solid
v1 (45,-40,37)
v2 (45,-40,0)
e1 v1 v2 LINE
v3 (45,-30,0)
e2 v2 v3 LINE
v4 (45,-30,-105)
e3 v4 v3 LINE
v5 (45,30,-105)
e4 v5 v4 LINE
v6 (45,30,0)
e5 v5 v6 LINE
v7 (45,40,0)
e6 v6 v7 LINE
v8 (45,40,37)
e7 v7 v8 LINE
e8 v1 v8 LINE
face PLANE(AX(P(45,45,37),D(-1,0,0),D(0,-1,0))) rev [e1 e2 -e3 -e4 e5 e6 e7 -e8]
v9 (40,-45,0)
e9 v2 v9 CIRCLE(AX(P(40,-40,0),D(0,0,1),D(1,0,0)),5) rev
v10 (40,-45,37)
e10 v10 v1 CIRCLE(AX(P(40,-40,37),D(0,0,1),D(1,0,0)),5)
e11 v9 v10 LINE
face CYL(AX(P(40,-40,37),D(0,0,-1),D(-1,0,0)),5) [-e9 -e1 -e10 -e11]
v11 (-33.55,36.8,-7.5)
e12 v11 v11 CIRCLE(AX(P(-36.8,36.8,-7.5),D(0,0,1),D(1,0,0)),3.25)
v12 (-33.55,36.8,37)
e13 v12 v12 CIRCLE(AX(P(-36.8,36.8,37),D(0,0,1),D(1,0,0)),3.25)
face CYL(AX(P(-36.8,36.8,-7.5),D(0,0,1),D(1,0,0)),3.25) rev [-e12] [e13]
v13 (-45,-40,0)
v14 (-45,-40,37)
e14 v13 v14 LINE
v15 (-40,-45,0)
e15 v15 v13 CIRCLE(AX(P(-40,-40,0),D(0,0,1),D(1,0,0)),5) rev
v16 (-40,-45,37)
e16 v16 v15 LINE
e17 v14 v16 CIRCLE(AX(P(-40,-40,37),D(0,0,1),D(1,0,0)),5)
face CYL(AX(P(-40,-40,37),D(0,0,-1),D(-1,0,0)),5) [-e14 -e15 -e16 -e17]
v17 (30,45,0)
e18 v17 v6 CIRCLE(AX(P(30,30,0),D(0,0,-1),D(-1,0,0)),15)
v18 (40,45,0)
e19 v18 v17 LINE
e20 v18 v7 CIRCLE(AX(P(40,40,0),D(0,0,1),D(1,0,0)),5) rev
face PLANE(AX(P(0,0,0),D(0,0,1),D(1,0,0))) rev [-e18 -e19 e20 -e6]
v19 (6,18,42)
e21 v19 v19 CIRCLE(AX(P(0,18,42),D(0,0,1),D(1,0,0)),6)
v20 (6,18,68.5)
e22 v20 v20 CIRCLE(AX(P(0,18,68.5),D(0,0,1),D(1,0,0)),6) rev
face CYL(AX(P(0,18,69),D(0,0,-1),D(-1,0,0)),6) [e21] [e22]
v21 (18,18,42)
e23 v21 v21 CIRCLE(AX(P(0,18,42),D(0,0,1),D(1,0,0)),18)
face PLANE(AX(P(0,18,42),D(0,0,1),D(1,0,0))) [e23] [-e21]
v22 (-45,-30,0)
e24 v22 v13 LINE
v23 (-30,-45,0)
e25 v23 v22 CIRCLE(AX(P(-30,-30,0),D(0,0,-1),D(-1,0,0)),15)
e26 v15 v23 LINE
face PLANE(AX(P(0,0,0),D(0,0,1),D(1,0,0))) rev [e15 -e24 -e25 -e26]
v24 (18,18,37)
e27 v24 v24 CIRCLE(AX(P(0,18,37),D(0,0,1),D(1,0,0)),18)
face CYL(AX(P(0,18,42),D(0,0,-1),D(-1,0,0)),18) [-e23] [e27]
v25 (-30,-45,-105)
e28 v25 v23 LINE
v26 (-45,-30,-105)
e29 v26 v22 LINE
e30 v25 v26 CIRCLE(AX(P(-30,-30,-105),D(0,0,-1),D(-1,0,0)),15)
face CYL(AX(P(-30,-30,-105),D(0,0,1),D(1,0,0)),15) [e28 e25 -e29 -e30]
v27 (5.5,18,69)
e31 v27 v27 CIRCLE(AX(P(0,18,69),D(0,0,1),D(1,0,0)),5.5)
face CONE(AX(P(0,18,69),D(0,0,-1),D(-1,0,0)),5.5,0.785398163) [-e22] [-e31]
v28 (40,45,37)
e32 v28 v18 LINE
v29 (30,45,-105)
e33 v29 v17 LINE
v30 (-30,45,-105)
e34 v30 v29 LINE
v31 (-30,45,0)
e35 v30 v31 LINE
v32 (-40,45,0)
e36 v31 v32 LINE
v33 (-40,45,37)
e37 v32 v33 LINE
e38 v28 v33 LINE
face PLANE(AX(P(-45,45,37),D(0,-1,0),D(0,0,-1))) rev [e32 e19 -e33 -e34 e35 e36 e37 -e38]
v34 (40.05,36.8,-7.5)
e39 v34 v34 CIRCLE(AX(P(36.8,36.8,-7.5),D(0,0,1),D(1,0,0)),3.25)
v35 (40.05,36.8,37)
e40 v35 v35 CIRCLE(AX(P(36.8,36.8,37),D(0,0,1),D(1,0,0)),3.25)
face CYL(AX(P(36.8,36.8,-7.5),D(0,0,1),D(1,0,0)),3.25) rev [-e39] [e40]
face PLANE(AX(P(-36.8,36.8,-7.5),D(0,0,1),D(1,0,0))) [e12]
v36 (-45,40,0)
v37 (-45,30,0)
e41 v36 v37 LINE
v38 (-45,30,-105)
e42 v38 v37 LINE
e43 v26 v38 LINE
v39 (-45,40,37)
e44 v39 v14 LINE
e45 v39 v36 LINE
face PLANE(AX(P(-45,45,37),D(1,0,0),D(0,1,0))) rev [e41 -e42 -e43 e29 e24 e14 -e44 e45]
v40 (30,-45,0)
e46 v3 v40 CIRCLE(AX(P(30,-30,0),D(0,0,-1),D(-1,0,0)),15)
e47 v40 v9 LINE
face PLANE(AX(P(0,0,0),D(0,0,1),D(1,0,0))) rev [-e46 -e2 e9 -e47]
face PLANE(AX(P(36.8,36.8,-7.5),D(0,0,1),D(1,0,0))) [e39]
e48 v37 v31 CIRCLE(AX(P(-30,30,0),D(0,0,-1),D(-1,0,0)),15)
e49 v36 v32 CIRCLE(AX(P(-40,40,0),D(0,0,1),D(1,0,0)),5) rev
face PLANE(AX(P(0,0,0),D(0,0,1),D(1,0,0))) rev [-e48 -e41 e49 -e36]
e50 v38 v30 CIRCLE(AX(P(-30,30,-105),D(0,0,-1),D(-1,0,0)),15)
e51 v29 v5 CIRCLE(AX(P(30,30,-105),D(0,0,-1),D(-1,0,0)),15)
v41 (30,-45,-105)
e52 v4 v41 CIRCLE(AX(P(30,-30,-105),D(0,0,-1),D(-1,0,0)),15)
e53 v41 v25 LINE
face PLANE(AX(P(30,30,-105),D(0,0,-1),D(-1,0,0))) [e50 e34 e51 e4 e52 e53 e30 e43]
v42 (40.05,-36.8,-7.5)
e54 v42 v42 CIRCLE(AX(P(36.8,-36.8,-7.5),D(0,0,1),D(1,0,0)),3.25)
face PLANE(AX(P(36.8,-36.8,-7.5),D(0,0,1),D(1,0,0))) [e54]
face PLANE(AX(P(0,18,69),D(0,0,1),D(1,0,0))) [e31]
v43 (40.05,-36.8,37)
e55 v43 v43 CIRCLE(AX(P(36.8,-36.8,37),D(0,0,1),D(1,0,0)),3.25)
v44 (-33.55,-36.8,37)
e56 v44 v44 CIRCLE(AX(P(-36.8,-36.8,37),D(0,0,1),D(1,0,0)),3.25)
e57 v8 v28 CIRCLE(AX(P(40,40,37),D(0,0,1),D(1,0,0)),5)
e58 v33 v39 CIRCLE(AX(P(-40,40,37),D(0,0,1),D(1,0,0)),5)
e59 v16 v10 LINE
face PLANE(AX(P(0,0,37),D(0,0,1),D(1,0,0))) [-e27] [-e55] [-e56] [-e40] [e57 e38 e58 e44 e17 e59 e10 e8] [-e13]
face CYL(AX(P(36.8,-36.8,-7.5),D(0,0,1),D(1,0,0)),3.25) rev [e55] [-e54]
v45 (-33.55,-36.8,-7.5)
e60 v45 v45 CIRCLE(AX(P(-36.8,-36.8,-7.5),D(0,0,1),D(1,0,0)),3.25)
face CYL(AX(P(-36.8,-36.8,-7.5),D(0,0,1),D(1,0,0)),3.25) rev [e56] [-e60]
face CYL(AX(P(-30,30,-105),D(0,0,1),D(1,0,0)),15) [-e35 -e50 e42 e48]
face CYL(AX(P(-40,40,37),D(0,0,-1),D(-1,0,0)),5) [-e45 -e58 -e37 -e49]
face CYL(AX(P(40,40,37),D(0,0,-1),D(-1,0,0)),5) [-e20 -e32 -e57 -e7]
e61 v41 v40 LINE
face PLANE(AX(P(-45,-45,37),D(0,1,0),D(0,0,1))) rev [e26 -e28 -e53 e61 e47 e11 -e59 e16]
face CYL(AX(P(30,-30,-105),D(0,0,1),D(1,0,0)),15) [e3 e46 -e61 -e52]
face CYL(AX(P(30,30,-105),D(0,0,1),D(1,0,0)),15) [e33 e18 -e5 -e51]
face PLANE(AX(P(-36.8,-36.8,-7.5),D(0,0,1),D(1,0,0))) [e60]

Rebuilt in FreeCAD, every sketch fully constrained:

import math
import FreeCAD as App
import Part
import Sketcher
Q = App.Units.Quantity


def edges_at(feature, points):
    """Names of the edges that pass closest to the given points."""
    edges = feature.Shape.Edges
    near = lambda p: min(range(len(edges)), key=lambda i: edges[i].distToShape(Part.Vertex(*p))[0])
    return sorted({f"Edge{near(p) + 1}" for p in points})


def add_polygon(sketch, points):
    """Adds a closed chain of lines whose ends are joined by coincident constraints."""
    first, n = sketch.GeometryCount, len(points)
    for a, b in zip(points, points[1:] + points[:1]):
        sketch.addGeometry(Part.LineSegment(App.Vector(*a, 0), App.Vector(*b, 0)), False)
    for i in range(n):
        sketch.addConstraint(Sketcher.Constraint("Coincident", first + i, 2, first + (i + 1) % n, 1))

doc = App.newDocument("Part")
params = doc.addObject("Spreadsheet::Sheet", "Params")
for row, (alias, value) in enumerate([
    ("sketch1_width", "90 mm"),
    ("pad1_length", "37 mm"),
    ("fillet_radius", "5 mm"),
    ("sketch2_diameter", "36 mm"),
    ("pad2_length", "5 mm"),
    ("sketch3_diameter", "12 mm"),
    ("pad3_length", "27 mm"),
    ("sketch4_radius", "15 mm"),
    ("sketch4_width", "60 mm"),
    ("pad4_length", "105 mm"),
    ("chamfer_size", "0.5 mm"),
    ("sketch5_diameter", "6.5 mm"),
    ("pocket1_length", "44.5 mm"),
], start=1):
    params.set(f"A{row}", alias)
    params.set(f"B{row}", "=" + value)
    params.setAlias(f"B{row}", alias)

body = doc.addObject("PartDesign::Body", "Body")

sketch1 = body.newObject("Sketcher::SketchObject", "Sketch")
sketch1.AttachmentSupport = (doc.getObject("XY_Plane"), [""])
sketch1.MapMode = "FlatFace"
add_polygon(sketch1, [(-45, 45), (-45, -45), (45, -45), (45, 45)])
sketch1.addConstraint(Sketcher.Constraint("Vertical", 0))
sketch1.addConstraint(Sketcher.Constraint("Horizontal", 1))
sketch1.addConstraint(Sketcher.Constraint("Vertical", 2))
sketch1.addConstraint(Sketcher.Constraint("Horizontal", 3))
sketch1.addConstraint(Sketcher.Constraint("Symmetric", 0, 2, 2, 2, -1, 1))
sketch1.addConstraint(Sketcher.Constraint("Equal", 3, 0))
sketch1.addConstraint(Sketcher.Constraint("DistanceX", 1, 1, 1, 2, Q("90 mm")))
sketch1.setExpression("Constraints[10]", "Params.sketch1_width")
pad1 = body.newObject("PartDesign::Pad", "Pad")
pad1.Profile = sketch1
pad1.setExpression("Length", "Params.pad1_length")
doc.recompute()

fillet = body.newObject("PartDesign::Fillet", "Fillet")
fillet.Base = (pad1, edges_at(pad1, [
    (45, -45, 18.5),
    (-45, -45, 18.5),
    (-45, 45, 18.5),
    (45, 45, 18.5),
]))
fillet.setExpression("Radius", "Params.fillet_radius")

sketch2 = body.newObject("Sketcher::SketchObject", "Sketch001")
sketch2.AttachmentSupport = (doc.getObject("XY_Plane"), [""])
sketch2.MapMode = "FlatFace"
sketch2.AttachmentOffset = App.Placement(App.Vector(0, 0, 37), App.Rotation())
sketch2.addGeometry(Part.Circle(App.Vector(0, 18, 0), App.Vector(0, 0, 1), 18), False)
sketch2.addConstraint(Sketcher.Constraint("PointOnObject", 0, 3, -2))
sketch2.addConstraint(Sketcher.Constraint("Diameter", 0, Q("36 mm")))
sketch2.addConstraint(Sketcher.Constraint("DistanceY", -1, 1, 0, 3, Q("18 mm")))
sketch2.setExpression("Constraints[1]", "Params.sketch2_diameter")
pad2 = body.newObject("PartDesign::Pad", "Pad001")
pad2.Profile = sketch2
pad2.setExpression("Length", "Params.pad2_length")

sketch3 = body.newObject("Sketcher::SketchObject", "Sketch002")
sketch3.AttachmentSupport = (doc.getObject("XY_Plane"), [""])
sketch3.MapMode = "FlatFace"
sketch3.AttachmentOffset = App.Placement(App.Vector(0, 0, 42), App.Rotation())
sketch3.addGeometry(Part.Circle(App.Vector(0, 18, 0), App.Vector(0, 0, 1), 6), False)
sketch3.addConstraint(Sketcher.Constraint("PointOnObject", 0, 3, -2))
sketch3.addConstraint(Sketcher.Constraint("Diameter", 0, Q("12 mm")))
sketch3.addConstraint(Sketcher.Constraint("DistanceY", -1, 1, 0, 3, Q("18 mm")))
sketch3.setExpression("Constraints[1]", "Params.sketch3_diameter")
pad3 = body.newObject("PartDesign::Pad", "Pad002")
pad3.Profile = sketch3
pad3.setExpression("Length", "Params.pad3_length")

sketch4 = body.newObject("Sketcher::SketchObject", "Sketch003")
sketch4.AttachmentSupport = (doc.getObject("XY_Plane"), [""])
sketch4.MapMode = "FlatFace"
sketch4.addGeometry(Part.LineSegment(App.Vector(-30, 45, 0), App.Vector(30, 45, 0)), False)
sketch4.addGeometry(Part.ArcOfCircle(Part.Circle(App.Vector(30, 30, 0), App.Vector(0, 0, 1), 15), math.radians(0), math.radians(90)), False)
sketch4.addGeometry(Part.LineSegment(App.Vector(45, 30, 0), App.Vector(45, -30, 0)), False)
sketch4.addGeometry(Part.ArcOfCircle(Part.Circle(App.Vector(30, -30, 0), App.Vector(0, 0, 1), 15), math.radians(-90), math.radians(0)), False)
sketch4.addGeometry(Part.LineSegment(App.Vector(30, -45, 0), App.Vector(-30, -45, 0)), False)
sketch4.addGeometry(Part.ArcOfCircle(Part.Circle(App.Vector(-30, -30, 0), App.Vector(0, 0, 1), 15), math.radians(180), math.radians(270)), False)
sketch4.addGeometry(Part.LineSegment(App.Vector(-45, -30, 0), App.Vector(-45, 30, 0)), False)
sketch4.addGeometry(Part.ArcOfCircle(Part.Circle(App.Vector(-30, 30, 0), App.Vector(0, 0, 1), 15), math.radians(90), math.radians(180)), False)
sketch4.addConstraint(Sketcher.Constraint("Tangent", 0, 2, 1, 2))
sketch4.addConstraint(Sketcher.Constraint("Tangent", 1, 1, 2, 1))
sketch4.addConstraint(Sketcher.Constraint("Tangent", 2, 2, 3, 2))
sketch4.addConstraint(Sketcher.Constraint("Tangent", 3, 1, 4, 1))
sketch4.addConstraint(Sketcher.Constraint("Tangent", 4, 2, 5, 2))
sketch4.addConstraint(Sketcher.Constraint("Tangent", 5, 1, 6, 1))
sketch4.addConstraint(Sketcher.Constraint("Tangent", 6, 2, 7, 2))
sketch4.addConstraint(Sketcher.Constraint("Tangent", 7, 1, 0, 1))
sketch4.addConstraint(Sketcher.Constraint("Horizontal", 0))
sketch4.addConstraint(Sketcher.Constraint("Vertical", 2))
sketch4.addConstraint(Sketcher.Constraint("Horizontal", 4))
sketch4.addConstraint(Sketcher.Constraint("Vertical", 6))
sketch4.addConstraint(Sketcher.Constraint("Equal", 1, 3))
sketch4.addConstraint(Sketcher.Constraint("Equal", 3, 5))
sketch4.addConstraint(Sketcher.Constraint("Equal", 5, 7))
sketch4.addConstraint(Sketcher.Constraint("Symmetric", 1, 3, 5, 3, -1, 1))
sketch4.addConstraint(Sketcher.Constraint("Equal", 4, 2))
sketch4.addConstraint(Sketcher.Constraint("Radius", 1, Q("15 mm")))
sketch4.addConstraint(Sketcher.Constraint("DistanceX", 0, 1, 0, 2, Q("60 mm")))
sketch4.setExpression("Constraints[17]", "Params.sketch4_radius")
sketch4.setExpression("Constraints[18]", "Params.sketch4_width")
pad4 = body.newObject("PartDesign::Pad", "Pad003")
pad4.Profile = sketch4
pad4.setExpression("Length", "Params.pad4_length")
pad4.Reversed = True
doc.recompute()

chamfer = body.newObject("PartDesign::Chamfer", "Chamfer")
chamfer.Base = (pad4, edges_at(pad4, [(-6, 18, 69)]))
chamfer.setExpression("Size", "Params.chamfer_size")

sketch5 = body.newObject("Sketcher::SketchObject", "Sketch004")
sketch5.AttachmentSupport = (doc.getObject("XY_Plane"), [""])
sketch5.MapMode = "FlatFace"
sketch5.AttachmentOffset = App.Placement(App.Vector(0, 0, 37), App.Rotation())
sketch5.addGeometry(Part.Circle(App.Vector(-36.8, 36.8, 0), App.Vector(0, 0, 1), 3.2), False)
sketch5.addGeometry(Part.Circle(App.Vector(36.8, 36.8, 0), App.Vector(0, 0, 1), 3.2), False)
sketch5.addGeometry(Part.Circle(App.Vector(36.8, -36.8, 0), App.Vector(0, 0, 1), 3.2), False)
sketch5.addGeometry(Part.Circle(App.Vector(-36.8, -36.8, 0), App.Vector(0, 0, 1), 3.2), False)
sketch5.addConstraint(Sketcher.Constraint("Equal", 0, 1))
sketch5.addConstraint(Sketcher.Constraint("Equal", 1, 2))
sketch5.addConstraint(Sketcher.Constraint("Equal", 2, 3))
sketch5.addConstraint(Sketcher.Constraint("Symmetric", 0, 3, 2, 3, -1, 1))
sketch5.addConstraint(Sketcher.Constraint("Symmetric", 1, 3, 3, 3, -1, 1))
sketch5.addConstraint(Sketcher.Constraint("Symmetric", 0, 3, 1, 3, -2))
sketch5.addConstraint(Sketcher.Constraint("Diameter", 0, Q("6.5 mm")))
sketch5.addConstraint(Sketcher.Constraint("DistanceX", 0, 3, -1, 1, Q("36.8 mm")))
sketch5.addConstraint(Sketcher.Constraint("DistanceY", -1, 1, 0, 3, Q("36.8 mm")))
sketch5.setExpression("Constraints[6]", "Params.sketch5_diameter")
pocket1 = body.newObject("PartDesign::Pocket", "Pocket")
pocket1.Profile = sketch5
pocket1.setExpression("Length", "Params.pocket1_length")

doc.recompute()
